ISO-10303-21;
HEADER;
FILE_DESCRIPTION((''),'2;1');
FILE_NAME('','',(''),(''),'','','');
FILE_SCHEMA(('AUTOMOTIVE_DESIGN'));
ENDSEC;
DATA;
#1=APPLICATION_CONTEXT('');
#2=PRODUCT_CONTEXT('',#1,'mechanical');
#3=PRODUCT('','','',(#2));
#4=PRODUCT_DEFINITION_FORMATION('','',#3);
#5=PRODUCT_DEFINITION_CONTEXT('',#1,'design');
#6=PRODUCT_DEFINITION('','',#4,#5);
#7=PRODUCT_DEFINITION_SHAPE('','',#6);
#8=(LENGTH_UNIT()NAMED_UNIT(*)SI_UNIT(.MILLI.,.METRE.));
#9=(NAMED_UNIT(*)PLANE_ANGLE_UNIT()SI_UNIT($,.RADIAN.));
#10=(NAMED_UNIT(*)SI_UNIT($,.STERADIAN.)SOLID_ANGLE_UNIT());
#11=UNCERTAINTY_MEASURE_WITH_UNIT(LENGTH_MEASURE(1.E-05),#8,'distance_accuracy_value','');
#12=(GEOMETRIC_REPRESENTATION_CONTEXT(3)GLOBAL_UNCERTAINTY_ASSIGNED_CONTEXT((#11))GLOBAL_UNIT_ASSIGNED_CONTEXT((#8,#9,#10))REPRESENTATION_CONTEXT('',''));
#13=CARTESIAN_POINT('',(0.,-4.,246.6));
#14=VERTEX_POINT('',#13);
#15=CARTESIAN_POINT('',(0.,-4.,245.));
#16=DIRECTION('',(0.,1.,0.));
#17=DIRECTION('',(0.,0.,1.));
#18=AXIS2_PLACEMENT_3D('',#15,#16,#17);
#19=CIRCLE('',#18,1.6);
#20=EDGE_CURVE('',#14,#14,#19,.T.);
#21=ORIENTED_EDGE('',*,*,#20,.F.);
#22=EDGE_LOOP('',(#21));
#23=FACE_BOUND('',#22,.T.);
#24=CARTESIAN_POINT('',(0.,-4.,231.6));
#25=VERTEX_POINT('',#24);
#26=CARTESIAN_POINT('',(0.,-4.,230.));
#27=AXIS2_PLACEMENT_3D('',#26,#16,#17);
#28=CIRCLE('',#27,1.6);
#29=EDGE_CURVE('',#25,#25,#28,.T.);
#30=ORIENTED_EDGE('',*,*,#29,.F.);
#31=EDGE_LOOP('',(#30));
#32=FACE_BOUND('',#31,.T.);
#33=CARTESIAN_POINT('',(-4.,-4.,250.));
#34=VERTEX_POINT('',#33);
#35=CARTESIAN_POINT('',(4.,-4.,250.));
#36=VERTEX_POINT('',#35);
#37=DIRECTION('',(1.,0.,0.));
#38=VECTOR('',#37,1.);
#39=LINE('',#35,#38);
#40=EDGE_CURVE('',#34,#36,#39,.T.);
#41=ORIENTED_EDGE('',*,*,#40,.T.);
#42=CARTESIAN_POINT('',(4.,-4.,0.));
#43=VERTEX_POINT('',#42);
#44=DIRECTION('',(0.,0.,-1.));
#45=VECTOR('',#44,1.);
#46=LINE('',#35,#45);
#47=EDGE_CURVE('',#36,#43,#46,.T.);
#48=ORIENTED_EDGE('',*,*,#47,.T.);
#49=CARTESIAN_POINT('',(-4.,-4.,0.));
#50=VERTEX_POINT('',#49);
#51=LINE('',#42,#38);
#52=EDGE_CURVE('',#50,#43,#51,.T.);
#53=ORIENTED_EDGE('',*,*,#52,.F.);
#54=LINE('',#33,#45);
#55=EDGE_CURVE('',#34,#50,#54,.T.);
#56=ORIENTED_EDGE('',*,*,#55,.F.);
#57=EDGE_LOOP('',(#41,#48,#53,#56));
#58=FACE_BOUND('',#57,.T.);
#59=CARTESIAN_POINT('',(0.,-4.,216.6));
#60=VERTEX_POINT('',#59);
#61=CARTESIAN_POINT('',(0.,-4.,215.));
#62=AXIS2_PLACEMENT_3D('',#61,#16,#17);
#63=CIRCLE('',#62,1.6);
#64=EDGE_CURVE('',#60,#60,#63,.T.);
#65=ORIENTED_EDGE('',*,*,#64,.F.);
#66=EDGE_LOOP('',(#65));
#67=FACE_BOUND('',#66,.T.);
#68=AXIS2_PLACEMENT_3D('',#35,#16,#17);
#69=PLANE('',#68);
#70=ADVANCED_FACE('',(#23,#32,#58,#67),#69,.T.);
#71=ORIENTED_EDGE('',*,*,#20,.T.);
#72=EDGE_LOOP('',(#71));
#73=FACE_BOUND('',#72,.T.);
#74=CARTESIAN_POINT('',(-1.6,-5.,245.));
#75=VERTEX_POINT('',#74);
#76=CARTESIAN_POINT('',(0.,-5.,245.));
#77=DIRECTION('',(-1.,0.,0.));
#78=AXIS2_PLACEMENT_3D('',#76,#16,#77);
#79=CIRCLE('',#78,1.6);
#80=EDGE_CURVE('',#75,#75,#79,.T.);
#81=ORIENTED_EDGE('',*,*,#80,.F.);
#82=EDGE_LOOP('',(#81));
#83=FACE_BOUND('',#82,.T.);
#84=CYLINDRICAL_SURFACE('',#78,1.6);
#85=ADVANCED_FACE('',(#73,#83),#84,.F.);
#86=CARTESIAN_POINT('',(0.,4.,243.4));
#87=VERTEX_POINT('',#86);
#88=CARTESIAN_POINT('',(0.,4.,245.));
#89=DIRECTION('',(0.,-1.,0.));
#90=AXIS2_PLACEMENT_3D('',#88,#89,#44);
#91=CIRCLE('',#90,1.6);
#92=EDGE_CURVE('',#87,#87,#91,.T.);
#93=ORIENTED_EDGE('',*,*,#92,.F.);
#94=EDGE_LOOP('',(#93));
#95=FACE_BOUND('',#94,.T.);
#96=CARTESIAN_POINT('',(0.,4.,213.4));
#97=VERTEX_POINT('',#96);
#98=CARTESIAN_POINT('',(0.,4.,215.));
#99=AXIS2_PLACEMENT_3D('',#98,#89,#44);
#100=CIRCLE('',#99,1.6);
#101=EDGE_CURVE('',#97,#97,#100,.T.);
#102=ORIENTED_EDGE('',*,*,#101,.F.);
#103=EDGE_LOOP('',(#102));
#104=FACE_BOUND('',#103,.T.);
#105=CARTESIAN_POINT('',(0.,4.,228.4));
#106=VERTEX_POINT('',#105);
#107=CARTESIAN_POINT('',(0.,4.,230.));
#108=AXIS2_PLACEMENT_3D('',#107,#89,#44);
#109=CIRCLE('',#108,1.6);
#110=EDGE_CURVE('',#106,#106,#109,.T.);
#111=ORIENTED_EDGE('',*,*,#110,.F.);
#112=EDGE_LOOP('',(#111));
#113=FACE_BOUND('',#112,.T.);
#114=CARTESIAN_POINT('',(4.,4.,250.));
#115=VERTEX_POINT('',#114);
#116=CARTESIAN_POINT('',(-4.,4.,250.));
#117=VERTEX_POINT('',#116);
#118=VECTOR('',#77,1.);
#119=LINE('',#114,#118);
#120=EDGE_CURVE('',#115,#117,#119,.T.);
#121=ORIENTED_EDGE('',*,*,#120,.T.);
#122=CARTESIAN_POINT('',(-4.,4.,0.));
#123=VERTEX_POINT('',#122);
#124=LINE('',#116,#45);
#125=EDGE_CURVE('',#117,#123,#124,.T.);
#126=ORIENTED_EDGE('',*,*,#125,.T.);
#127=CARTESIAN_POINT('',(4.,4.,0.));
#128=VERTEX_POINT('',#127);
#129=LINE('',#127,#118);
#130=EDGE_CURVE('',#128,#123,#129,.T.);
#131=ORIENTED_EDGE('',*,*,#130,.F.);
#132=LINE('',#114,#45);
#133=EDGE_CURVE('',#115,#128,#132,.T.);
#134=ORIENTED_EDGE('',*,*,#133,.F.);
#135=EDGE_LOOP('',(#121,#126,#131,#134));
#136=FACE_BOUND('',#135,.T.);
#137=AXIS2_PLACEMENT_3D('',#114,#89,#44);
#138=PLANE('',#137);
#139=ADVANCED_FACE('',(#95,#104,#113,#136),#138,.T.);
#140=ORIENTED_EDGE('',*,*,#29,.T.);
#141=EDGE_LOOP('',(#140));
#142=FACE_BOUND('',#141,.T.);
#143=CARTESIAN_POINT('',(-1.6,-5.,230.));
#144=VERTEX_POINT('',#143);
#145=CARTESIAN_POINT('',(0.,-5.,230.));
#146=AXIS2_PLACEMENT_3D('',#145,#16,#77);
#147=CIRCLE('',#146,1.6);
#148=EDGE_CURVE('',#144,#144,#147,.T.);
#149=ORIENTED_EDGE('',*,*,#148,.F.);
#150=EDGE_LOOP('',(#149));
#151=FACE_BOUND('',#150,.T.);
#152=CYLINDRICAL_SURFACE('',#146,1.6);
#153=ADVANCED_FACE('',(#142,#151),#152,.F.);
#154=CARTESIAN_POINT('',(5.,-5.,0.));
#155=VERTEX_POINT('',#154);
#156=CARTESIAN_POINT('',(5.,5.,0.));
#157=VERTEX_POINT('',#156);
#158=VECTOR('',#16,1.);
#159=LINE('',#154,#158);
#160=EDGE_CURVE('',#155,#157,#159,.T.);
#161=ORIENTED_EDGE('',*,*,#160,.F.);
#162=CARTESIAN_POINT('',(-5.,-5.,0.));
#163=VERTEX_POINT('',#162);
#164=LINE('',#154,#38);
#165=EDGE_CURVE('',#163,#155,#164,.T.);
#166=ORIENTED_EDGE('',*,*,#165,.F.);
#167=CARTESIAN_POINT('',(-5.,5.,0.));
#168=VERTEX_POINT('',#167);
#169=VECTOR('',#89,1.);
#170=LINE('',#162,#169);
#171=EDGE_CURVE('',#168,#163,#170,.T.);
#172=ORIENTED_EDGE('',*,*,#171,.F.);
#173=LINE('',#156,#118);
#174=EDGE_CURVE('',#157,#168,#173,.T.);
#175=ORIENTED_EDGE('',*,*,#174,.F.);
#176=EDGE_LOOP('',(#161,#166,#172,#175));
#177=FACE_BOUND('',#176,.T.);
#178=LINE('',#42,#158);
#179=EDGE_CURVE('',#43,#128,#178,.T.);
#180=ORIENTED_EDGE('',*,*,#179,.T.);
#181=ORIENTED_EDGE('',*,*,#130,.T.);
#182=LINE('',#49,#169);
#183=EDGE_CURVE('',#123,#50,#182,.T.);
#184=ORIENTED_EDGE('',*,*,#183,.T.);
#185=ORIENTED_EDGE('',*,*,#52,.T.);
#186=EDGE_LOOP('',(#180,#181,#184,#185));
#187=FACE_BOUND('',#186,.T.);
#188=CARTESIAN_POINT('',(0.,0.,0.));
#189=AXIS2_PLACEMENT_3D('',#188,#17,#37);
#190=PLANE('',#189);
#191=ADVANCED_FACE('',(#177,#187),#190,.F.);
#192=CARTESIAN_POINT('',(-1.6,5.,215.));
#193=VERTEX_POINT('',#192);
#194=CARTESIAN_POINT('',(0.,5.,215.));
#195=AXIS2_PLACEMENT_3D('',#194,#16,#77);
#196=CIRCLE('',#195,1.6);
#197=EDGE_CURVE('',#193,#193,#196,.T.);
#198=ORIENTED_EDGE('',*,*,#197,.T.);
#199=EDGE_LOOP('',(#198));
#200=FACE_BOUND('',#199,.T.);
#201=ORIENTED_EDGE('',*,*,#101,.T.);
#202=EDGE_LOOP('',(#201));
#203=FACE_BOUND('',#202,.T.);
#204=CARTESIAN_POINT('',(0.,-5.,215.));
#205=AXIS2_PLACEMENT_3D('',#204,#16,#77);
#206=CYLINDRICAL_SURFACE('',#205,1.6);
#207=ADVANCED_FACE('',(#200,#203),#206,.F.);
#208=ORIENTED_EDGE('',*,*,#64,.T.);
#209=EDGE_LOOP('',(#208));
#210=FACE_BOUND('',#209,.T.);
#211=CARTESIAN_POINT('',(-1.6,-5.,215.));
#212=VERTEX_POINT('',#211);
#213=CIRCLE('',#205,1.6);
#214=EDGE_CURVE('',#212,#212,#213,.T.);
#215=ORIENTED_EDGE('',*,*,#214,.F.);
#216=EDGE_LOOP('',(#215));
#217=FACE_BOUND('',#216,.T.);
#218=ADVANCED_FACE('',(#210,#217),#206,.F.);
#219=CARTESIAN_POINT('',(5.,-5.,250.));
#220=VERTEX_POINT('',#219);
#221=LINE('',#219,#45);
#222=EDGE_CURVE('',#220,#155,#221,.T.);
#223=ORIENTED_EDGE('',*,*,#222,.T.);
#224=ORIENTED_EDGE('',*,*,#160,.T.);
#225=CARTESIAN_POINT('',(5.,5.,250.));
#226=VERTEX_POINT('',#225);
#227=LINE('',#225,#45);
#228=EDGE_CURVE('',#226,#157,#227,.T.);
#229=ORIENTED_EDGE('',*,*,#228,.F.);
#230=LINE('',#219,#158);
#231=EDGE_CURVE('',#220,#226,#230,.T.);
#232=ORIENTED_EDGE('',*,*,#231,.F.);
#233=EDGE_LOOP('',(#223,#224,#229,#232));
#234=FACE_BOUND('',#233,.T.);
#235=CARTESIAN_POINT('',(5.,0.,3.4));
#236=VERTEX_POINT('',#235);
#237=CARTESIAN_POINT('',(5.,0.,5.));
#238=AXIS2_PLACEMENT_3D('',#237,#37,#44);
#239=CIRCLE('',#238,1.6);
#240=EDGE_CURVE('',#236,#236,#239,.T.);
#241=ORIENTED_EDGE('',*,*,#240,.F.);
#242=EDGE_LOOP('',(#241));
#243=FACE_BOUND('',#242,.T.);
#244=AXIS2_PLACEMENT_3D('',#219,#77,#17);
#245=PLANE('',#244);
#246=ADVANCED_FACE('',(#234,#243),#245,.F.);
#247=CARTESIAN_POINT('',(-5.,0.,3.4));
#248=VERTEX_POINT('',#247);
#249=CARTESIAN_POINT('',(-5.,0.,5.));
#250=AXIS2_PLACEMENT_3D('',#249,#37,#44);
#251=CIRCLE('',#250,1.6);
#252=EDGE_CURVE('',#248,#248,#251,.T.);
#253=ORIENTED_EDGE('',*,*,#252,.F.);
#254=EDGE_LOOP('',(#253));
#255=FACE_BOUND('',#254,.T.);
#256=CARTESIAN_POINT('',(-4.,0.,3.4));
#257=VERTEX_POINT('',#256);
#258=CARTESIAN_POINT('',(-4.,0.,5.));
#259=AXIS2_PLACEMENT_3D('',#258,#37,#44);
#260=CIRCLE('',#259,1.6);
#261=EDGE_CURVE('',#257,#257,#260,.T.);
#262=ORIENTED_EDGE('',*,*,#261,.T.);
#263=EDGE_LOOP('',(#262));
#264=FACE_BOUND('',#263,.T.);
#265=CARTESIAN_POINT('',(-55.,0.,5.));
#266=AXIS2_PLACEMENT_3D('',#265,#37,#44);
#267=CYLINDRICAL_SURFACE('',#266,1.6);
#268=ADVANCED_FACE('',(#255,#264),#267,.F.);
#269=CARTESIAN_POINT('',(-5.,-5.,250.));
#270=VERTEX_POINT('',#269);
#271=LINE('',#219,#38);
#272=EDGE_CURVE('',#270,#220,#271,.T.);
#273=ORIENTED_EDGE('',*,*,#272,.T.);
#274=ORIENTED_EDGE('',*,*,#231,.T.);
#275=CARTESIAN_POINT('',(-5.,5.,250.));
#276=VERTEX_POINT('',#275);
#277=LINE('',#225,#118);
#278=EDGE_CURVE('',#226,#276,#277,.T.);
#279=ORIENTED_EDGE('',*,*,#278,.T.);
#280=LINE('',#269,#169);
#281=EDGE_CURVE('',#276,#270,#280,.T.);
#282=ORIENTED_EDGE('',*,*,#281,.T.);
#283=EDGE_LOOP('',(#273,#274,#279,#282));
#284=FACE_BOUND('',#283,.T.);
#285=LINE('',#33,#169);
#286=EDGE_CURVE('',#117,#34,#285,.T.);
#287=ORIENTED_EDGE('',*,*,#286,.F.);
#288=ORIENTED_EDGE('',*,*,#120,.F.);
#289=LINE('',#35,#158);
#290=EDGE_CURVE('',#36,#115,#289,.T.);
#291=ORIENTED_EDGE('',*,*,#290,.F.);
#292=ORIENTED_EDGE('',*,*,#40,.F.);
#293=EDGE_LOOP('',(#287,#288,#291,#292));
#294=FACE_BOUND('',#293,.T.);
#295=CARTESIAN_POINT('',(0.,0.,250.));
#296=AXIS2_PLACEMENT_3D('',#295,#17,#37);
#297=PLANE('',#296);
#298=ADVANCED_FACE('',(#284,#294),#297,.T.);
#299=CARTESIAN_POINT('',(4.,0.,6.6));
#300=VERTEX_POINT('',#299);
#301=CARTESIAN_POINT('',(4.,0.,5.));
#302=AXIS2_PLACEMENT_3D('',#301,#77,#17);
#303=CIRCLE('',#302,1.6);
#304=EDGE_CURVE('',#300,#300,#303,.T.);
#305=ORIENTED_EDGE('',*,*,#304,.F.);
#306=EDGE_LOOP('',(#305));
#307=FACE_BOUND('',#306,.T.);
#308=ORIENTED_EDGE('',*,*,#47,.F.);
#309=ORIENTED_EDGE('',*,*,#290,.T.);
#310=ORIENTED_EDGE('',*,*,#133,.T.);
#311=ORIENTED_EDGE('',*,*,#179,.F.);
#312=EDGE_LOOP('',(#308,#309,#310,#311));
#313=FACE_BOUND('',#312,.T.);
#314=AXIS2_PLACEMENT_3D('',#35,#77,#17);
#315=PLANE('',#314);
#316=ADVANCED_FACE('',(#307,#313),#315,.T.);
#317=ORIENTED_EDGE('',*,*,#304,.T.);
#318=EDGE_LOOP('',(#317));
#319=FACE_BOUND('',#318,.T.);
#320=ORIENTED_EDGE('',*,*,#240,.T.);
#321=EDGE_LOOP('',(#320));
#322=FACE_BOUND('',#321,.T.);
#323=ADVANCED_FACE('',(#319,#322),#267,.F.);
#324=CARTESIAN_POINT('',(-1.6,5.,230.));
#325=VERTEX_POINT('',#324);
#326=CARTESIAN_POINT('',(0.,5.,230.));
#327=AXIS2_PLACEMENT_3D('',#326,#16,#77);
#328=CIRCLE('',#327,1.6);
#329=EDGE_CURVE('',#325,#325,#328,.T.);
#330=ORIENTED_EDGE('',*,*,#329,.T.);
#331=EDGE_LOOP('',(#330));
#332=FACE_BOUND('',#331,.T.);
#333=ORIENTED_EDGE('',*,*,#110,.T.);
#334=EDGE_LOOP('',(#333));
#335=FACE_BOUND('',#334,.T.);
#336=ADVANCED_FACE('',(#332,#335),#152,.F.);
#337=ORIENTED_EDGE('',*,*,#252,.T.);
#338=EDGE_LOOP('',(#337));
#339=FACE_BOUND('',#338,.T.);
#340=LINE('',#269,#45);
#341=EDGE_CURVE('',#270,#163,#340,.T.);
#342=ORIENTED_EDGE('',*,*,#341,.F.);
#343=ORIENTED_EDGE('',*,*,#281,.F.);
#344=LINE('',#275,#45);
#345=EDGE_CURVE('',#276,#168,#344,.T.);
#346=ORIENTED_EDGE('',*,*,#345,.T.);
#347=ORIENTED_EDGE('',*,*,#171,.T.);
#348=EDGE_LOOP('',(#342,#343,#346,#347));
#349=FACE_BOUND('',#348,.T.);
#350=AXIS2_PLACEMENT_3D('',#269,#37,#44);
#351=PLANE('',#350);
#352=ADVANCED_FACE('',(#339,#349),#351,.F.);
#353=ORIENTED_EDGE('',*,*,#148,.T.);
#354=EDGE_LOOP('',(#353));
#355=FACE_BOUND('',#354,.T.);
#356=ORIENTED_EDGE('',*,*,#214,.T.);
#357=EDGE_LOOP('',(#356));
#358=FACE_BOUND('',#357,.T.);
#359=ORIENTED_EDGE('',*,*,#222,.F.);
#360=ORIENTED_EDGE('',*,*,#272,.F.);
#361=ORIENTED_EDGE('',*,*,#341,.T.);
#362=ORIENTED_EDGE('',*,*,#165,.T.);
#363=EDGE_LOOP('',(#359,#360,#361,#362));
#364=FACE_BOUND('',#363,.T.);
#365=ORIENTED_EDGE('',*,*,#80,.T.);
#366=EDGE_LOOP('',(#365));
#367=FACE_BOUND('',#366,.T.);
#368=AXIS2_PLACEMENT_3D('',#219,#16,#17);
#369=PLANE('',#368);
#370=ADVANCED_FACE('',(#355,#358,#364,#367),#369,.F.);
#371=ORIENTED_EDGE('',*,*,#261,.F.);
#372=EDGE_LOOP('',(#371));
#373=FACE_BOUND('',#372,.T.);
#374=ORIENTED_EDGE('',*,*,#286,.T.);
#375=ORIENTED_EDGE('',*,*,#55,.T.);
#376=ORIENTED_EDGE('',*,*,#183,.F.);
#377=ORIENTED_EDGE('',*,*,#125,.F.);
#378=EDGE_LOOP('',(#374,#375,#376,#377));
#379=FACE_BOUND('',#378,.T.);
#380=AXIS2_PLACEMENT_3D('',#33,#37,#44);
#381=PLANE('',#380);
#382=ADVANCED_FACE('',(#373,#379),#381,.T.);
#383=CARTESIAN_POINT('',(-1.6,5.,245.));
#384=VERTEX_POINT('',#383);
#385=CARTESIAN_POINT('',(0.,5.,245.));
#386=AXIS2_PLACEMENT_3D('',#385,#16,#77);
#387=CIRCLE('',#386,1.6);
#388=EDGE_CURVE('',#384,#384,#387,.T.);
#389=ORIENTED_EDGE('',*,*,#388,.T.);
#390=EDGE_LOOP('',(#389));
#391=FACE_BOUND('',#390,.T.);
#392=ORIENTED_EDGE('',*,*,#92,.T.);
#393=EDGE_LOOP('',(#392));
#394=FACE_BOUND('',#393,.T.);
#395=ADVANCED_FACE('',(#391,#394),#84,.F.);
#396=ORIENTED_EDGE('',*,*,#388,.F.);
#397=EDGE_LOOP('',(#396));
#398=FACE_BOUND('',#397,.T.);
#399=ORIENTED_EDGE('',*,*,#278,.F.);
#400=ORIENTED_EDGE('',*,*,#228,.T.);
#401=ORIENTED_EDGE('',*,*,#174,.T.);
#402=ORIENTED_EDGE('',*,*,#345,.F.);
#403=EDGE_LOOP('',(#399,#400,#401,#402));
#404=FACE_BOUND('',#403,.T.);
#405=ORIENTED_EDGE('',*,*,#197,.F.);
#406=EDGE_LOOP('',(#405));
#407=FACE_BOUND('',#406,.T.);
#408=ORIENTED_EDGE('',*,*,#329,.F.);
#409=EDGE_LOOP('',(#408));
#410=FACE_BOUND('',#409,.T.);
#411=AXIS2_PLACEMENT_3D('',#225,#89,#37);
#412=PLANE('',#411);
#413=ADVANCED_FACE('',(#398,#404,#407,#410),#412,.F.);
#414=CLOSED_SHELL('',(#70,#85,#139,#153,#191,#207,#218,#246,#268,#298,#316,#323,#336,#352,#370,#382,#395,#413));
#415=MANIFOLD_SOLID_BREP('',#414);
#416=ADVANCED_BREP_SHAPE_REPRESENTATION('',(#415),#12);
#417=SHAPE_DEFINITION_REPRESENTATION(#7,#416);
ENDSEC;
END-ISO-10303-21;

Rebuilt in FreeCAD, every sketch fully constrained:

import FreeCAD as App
import Part
import Sketcher

V = App.Vector

doc = App.newDocument("Part")
params = doc.addObject("Spreadsheet::Sheet", "Params")
for row, (alias, value) in enumerate([
    ("sketch1_width", "10 mm"),
    ("sketch1_width2", "8 mm"),
    ("pad1_length", "250 mm"),
    ("sketch2_diameter", "3.2 mm"),
    ("sketch3_diameter", "3.2 mm"),
    ("pocket2_length", "60 mm"),
], start=1):
    params.set(f"A{row}", alias)
    params.set(f"B{row}", "=" + value)
    params.setAlias(f"B{row}", alias)

body = doc.addObject("PartDesign::Body", "Body")

# Sketch on XY plane
sketch1 = body.newObject("Sketcher::SketchObject", "Sketch")
sketch1.AttachmentSupport = (doc.getObject("XY_Plane"), [""])
sketch1.MapMode = "FlatFace"
sketch1.addGeometry(Part.LineSegment(V(-5, 5, 0), V(-5, -5, 0)), False)
sketch1.addGeometry(Part.LineSegment(V(-5, -5, 0), V(5, -5, 0)), False)
sketch1.addGeometry(Part.LineSegment(V(5, -5, 0), V(5, 5, 0)), False)
sketch1.addGeometry(Part.LineSegment(V(5, 5, 0), V(-5, 5, 0)), False)
sketch1.addGeometry(Part.LineSegment(V(4, -4, 0), V(-4, -4, 0)), False)
sketch1.addGeometry(Part.LineSegment(V(-4, -4, 0), V(-4, 4, 0)), False)
sketch1.addGeometry(Part.LineSegment(V(-4, 4, 0), V(4, 4, 0)), False)
sketch1.addGeometry(Part.LineSegment(V(4, 4, 0), V(4, -4, 0)), False)
sketch1.addConstraint(Sketcher.Constraint("Coincident", 0, 2, 1, 1))
sketch1.addConstraint(Sketcher.Constraint("Coincident", 1, 2, 2, 1))
sketch1.addConstraint(Sketcher.Constraint("Coincident", 2, 2, 3, 1))
sketch1.addConstraint(Sketcher.Constraint("Coincident", 3, 2, 0, 1))
sketch1.addConstraint(Sketcher.Constraint("Coincident", 4, 2, 5, 1))
sketch1.addConstraint(Sketcher.Constraint("Coincident", 5, 2, 6, 1))
sketch1.addConstraint(Sketcher.Constraint("Coincident", 6, 2, 7, 1))
sketch1.addConstraint(Sketcher.Constraint("Coincident", 7, 2, 4, 1))
sketch1.addConstraint(Sketcher.Constraint("Vertical", 0))
sketch1.addConstraint(Sketcher.Constraint("Horizontal", 1))
sketch1.addConstraint(Sketcher.Constraint("Vertical", 2))
sketch1.addConstraint(Sketcher.Constraint("Horizontal", 3))
sketch1.addConstraint(Sketcher.Constraint("Horizontal", 4))
sketch1.addConstraint(Sketcher.Constraint("Vertical", 5))
sketch1.addConstraint(Sketcher.Constraint("Horizontal", 6))
sketch1.addConstraint(Sketcher.Constraint("Vertical", 7))
sketch1.addConstraint(Sketcher.Constraint("Symmetric", 0, 2, 2, 2, -1, 1))
sketch1.addConstraint(Sketcher.Constraint("Symmetric", 4, 2, 6, 2, -1, 1))
sketch1.addConstraint(Sketcher.Constraint("Equal", 3, 0))
sketch1.addConstraint(Sketcher.Constraint("Equal", 6, 5))
sketch1.addConstraint(Sketcher.Constraint("DistanceX", 1, 1, 1, 2, 10.0))
sketch1.addConstraint(Sketcher.Constraint("DistanceX", 4, 2, 4, 1, 8.0))
sketch1.setExpression("Constraints[20]", "Params.sketch1_width")
sketch1.setExpression("Constraints[21]", "Params.sketch1_width2")
pad1 = body.newObject("PartDesign::Pad", "Pad")
pad1.Profile = sketch1
pad1.setExpression("Length", "Params.pad1_length")

# Sketch on XZ plane
sketch2 = body.newObject("Sketcher::SketchObject", "Sketch001")
sketch2.AttachmentSupport = (doc.getObject("XZ_Plane"), [""])
sketch2.MapMode = "FlatFace"
sketch2.AttachmentOffset = App.Placement(V(0, 0, -5), App.Rotation())
sketch2.addGeometry(Part.Circle(V(0, 215, 0), V(0, 0, 1), 1.6), False)
sketch2.addGeometry(Part.Circle(V(0, 245, 0), V(0, 0, 1), 1.6), False)
sketch2.addGeometry(Part.Circle(V(0, 230, 0), V(0, 0, 1), 1.6), False)
sketch2.addConstraint(Sketcher.Constraint("Equal", 0, 1))
sketch2.addConstraint(Sketcher.Constraint("Equal", 1, 2))
sketch2.addConstraint(Sketcher.Constraint("PointOnObject", 0, 3, -2))
sketch2.addConstraint(Sketcher.Constraint("PointOnObject", 1, 3, -2))
sketch2.addConstraint(Sketcher.Constraint("PointOnObject", 2, 3, -2))
sketch2.addConstraint(Sketcher.Constraint("Diameter", 0, 3.2))
sketch2.addConstraint(Sketcher.Constraint("DistanceY", -1, 1, 0, 3, 215.0))
sketch2.addConstraint(Sketcher.Constraint("DistanceY", -1, 1, 1, 3, 245.0))
sketch2.addConstraint(Sketcher.Constraint("DistanceY", -1, 1, 2, 3, 230.0))
sketch2.setExpression("Constraints[5]", "Params.sketch2_diameter")
pocket1 = body.newObject("PartDesign::Pocket", "Pocket")
pocket1.Profile = sketch2
pocket1.Type = "ThroughAll"
pocket1.Reversed = True

# Sketch on YZ plane
sketch3 = body.newObject("Sketcher::SketchObject", "Sketch002")
sketch3.AttachmentSupport = (doc.getObject("YZ_Plane"), [""])
sketch3.MapMode = "FlatFace"
sketch3.AttachmentOffset = App.Placement(V(0, 0, 5), App.Rotation())
sketch3.addGeometry(Part.Circle(V(0, 5, 0), V(0, 0, 1), 1.6), False)
sketch3.addConstraint(Sketcher.Constraint("PointOnObject", 0, 3, -2))
sketch3.addConstraint(Sketcher.Constraint("Diameter", 0, 3.2))
sketch3.addConstraint(Sketcher.Constraint("DistanceY", -1, 1, 0, 3, 5.0))
sketch3.setExpression("Constraints[1]", "Params.sketch3_diameter")
pocket2 = body.newObject("PartDesign::Pocket", "Pocket001")
pocket2.Profile = sketch3
pocket2.setExpression("Length", "Params.pocket2_length")

doc.recompute()
